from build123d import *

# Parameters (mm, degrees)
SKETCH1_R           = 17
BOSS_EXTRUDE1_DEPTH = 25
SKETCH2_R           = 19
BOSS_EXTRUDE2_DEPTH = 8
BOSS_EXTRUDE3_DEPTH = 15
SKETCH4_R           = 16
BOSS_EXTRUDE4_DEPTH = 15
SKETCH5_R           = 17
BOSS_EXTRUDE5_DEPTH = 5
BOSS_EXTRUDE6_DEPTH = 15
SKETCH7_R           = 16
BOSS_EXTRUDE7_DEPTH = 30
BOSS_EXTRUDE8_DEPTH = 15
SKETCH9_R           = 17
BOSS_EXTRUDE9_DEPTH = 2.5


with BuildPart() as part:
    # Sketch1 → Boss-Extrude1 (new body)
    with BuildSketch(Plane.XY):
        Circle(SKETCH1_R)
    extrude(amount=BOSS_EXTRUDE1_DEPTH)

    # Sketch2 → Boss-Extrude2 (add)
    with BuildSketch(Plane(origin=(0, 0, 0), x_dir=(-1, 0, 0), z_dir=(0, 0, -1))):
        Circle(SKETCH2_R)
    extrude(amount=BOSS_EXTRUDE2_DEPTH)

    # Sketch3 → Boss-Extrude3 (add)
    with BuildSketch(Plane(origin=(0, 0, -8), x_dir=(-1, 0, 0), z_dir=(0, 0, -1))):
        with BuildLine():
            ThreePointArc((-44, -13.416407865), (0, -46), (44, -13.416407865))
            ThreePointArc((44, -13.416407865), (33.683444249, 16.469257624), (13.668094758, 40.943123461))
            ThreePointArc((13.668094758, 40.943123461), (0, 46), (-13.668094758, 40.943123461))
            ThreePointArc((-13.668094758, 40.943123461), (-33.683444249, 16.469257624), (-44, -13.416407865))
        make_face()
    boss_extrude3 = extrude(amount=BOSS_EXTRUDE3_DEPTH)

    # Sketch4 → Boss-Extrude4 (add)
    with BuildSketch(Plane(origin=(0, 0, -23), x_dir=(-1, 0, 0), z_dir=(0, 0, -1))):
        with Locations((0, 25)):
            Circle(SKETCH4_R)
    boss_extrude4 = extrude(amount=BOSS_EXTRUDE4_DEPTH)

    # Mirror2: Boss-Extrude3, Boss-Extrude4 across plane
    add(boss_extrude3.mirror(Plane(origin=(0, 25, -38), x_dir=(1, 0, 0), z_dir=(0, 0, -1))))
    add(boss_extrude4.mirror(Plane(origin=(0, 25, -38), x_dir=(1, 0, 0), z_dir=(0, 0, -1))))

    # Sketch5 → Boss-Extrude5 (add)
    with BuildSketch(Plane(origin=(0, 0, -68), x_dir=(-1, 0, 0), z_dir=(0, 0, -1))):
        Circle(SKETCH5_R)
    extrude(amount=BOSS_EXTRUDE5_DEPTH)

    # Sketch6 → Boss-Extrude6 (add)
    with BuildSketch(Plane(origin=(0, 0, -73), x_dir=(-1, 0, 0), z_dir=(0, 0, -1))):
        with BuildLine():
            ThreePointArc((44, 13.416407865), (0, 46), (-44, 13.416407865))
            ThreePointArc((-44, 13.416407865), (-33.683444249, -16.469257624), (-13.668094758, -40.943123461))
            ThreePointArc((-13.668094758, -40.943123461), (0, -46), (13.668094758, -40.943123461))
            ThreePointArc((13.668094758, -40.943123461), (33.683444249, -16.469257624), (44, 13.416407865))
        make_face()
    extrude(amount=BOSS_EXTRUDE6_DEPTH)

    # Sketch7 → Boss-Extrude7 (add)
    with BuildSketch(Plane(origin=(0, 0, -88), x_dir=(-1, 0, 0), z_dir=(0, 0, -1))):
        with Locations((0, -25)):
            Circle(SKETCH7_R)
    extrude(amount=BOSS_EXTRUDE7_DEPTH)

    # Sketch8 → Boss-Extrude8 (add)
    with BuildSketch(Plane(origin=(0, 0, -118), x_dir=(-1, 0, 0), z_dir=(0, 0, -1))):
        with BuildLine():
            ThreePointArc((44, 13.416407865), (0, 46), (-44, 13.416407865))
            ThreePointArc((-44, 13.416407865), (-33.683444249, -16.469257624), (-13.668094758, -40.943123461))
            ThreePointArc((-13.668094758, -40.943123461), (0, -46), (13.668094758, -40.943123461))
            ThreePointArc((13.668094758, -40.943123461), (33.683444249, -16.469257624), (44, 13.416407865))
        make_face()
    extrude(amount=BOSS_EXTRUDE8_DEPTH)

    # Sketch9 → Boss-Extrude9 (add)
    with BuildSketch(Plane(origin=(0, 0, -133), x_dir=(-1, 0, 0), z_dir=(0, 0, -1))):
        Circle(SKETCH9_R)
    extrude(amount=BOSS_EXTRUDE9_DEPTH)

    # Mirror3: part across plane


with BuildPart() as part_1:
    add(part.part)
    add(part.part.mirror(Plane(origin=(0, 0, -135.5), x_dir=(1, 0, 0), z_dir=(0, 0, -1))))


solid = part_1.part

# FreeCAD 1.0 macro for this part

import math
import FreeCAD as App
import Part
import Sketcher

V = App.Vector
Q = App.Units.Quantity

doc = App.newDocument("Part")
body = doc.addObject("PartDesign::Body", "Body")

# Sketch on XY plane
sketch1 = doc.addObject("Sketcher::SketchObject", "Sketch")
body.addObject(sketch1)
sketch1.AttachmentSupport = (doc.XY_Plane, [""])
sketch1.MapMode = "FlatFace"
sketch1.addGeometry(Part.Circle(V(0, 0, 0), V(0, 0, 1), 17), False)
sketch1.addConstraint([
    Sketcher.Constraint("Coincident", 0, 3, -1, 1),
    Sketcher.Constraint("Diameter", 0, Q("34 mm")),
])
pad1 = doc.addObject("PartDesign::Pad", "Pad")
body.addObject(pad1)
pad1.Profile = sketch1
pad1.Length = 25

# Sketch on XY plane
sketch2 = doc.addObject("Sketcher::SketchObject", "Sketch001")
body.addObject(sketch2)
sketch2.AttachmentSupport = (doc.XY_Plane, [""])
sketch2.MapMode = "FlatFace"
sketch2.addGeometry(Part.Circle(V(0, 0, 0), V(0, 0, 1), 19), False)
sketch2.addConstraint([
    Sketcher.Constraint("Coincident", 0, 3, -1, 1),
    Sketcher.Constraint("Diameter", 0, Q("38 mm")),
])
pad2 = doc.addObject("PartDesign::Pad", "Pad001")
body.addObject(pad2)
pad2.Profile = sketch2
pad2.Length = 8
pad2.Reversed = True

# Sketch on XY plane
sketch3 = doc.addObject("Sketcher::SketchObject", "Sketch002")
body.addObject(sketch3)
sketch3.AttachmentSupport = (doc.XY_Plane, [""])
sketch3.MapMode = "FlatFace"
sketch3.AttachmentOffset = App.Placement(V(0, 0, -8), App.Rotation())
sketch3.addGeometry([
    Part.ArcOfCircle(Part.Circle(V(0, 0, 0), V(0, 0, 1), 46), math.radians(-163.042574), math.radians(-16.957426)),
    Part.ArcOfCircle(Part.Circle(V(44.909454, -27.384549, 0), V(0, 0, 1), 90), math.radians(130.606599), math.radians(171.071514)),
    Part.ArcOfCircle(Part.Circle(V(0, 25, 0), V(0, 0, 1), 21), math.radians(49.393401), math.radians(130.606599)),
    Part.ArcOfCircle(Part.Circle(V(-44.909454, -27.384549, 0), V(0, 0, 1), 90), math.radians(8.928486), math.radians(49.393401)),
], False)
sketch3.addConstraint([
    Sketcher.Constraint("Coincident", 0, 1, 1, 2),
    Sketcher.Constraint("Tangent", 1, 1, 2, 2),
    Sketcher.Constraint("Tangent", 2, 1, 3, 2),
    Sketcher.Constraint("Coincident", 3, 1, 0, 2),
    Sketcher.Constraint("Coincident", 0, 3, -1, 1),
    Sketcher.Constraint("Equal", 1, 3),
    Sketcher.Constraint("Symmetric", 1, 3, 3, 3, -2),
    Sketcher.Constraint("Radius", 0, Q("46 mm")),
    Sketcher.Constraint("Radius", 1, Q("90 mm")),
    Sketcher.Constraint("Radius", 2, Q("21 mm")),
    Sketcher.Constraint("DistanceY", -1, 1, 2, 3, Q("25 mm")),
    Sketcher.Constraint("DistanceX", 0, 1, -1, 1, Q("44 mm")),
])
pad3 = doc.addObject("PartDesign::Pad", "Pad002")
body.addObject(pad3)
pad3.Profile = sketch3
pad3.Length = 15
pad3.Reversed = True

# Sketch on XY plane
sketch4 = doc.addObject("Sketcher::SketchObject", "Sketch003")
body.addObject(sketch4)
sketch4.AttachmentSupport = (doc.XY_Plane, [""])
sketch4.MapMode = "FlatFace"
sketch4.AttachmentOffset = App.Placement(V(0, 0, -23), App.Rotation())
sketch4.addGeometry(Part.Circle(V(0, 25, 0), V(0, 0, 1), 16), False)
sketch4.addConstraint([
    Sketcher.Constraint("PointOnObject", 0, 3, -2),
    Sketcher.Constraint("Diameter", 0, Q("32 mm")),
    Sketcher.Constraint("DistanceY", -1, 1, 0, 3, Q("25 mm")),
])
pad4 = doc.addObject("PartDesign::Pad", "Pad003")
body.addObject(pad4)
pad4.Profile = sketch4
pad4.Length = 15
pad4.Reversed = True
doc.recompute()

datumplane = doc.addObject("PartDesign::Plane", "DatumPlane")
body.addObject(datumplane)
datumplane.AttachmentSupport = (doc.XY_Plane, [""])
datumplane.MapMode = "FlatFace"
datumplane.AttachmentOffset = App.Placement(V(0, 0, -38), App.Rotation())
mirrored = doc.addObject("PartDesign::Mirrored", "Mirrored")
body.addObject(mirrored)
mirrored.Originals = [pad3, pad4]
mirrored.MirrorPlane = (datumplane, [""])
body.Tip = mirrored

# Sketch on XY plane
sketch5 = doc.addObject("Sketcher::SketchObject", "Sketch004")
body.addObject(sketch5)
sketch5.AttachmentSupport = (doc.XY_Plane, [""])
sketch5.MapMode = "FlatFace"
sketch5.AttachmentOffset = App.Placement(V(0, 0, -68), App.Rotation())
sketch5.addGeometry(Part.Circle(V(0, 0, 0), V(0, 0, 1), 17), False)
sketch5.addConstraint([
    Sketcher.Constraint("Coincident", 0, 3, -1, 1),
    Sketcher.Constraint("Diameter", 0, Q("34 mm")),
])
pad5 = doc.addObject("PartDesign::Pad", "Pad004")
body.addObject(pad5)
pad5.Profile = sketch5
pad5.Length = 5
pad5.Reversed = True

# Sketch on XY plane
sketch6 = doc.addObject("Sketcher::SketchObject", "Sketch005")
body.addObject(sketch6)
sketch6.AttachmentSupport = (doc.XY_Plane, [""])
sketch6.MapMode = "FlatFace"
sketch6.AttachmentOffset = App.Placement(V(0, 0, -73), App.Rotation())
sketch6.addGeometry([
    Part.ArcOfCircle(Part.Circle(V(0, 0, 0), V(0, 0, 1), 46), math.radians(16.957426), math.radians(163.042574)),
    Part.ArcOfCircle(Part.Circle(V(-44.909454, 27.384549, 0), V(0, 0, 1), 90), math.radians(-49.393401), math.radians(-8.928486)),
    Part.ArcOfCircle(Part.Circle(V(0, -25, 0), V(0, 0, 1), 21), math.radians(-130.606599), math.radians(-49.393401)),
    Part.ArcOfCircle(Part.Circle(V(44.909454, 27.384549, 0), V(0, 0, 1), 90), math.radians(-171.071514), math.radians(-130.606599)),
], False)
sketch6.addConstraint([
    Sketcher.Constraint("Coincident", 0, 1, 1, 2),
    Sketcher.Constraint("Tangent", 1, 1, 2, 2),
    Sketcher.Constraint("Tangent", 2, 1, 3, 2),
    Sketcher.Constraint("Coincident", 3, 1, 0, 2),
    Sketcher.Constraint("Coincident", 0, 3, -1, 1),
    Sketcher.Constraint("Equal", 1, 3),
    Sketcher.Constraint("Symmetric", 1, 3, 3, 3, -2),
    Sketcher.Constraint("Radius", 0, Q("46 mm")),
    Sketcher.Constraint("Radius", 1, Q("90 mm")),
    Sketcher.Constraint("Radius", 2, Q("21 mm")),
    Sketcher.Constraint("DistanceY", 2, 3, -1, 1, Q("25 mm")),
    Sketcher.Constraint("DistanceX", -1, 1, 0, 1, Q("44 mm")),
])
pad6 = doc.addObject("PartDesign::Pad", "Pad005")
body.addObject(pad6)
pad6.Profile = sketch6
pad6.Length = 15
pad6.Reversed = True

# Sketch on XY plane
sketch7 = doc.addObject("Sketcher::SketchObject", "Sketch006")
body.addObject(sketch7)
sketch7.AttachmentSupport = (doc.XY_Plane, [""])
sketch7.MapMode = "FlatFace"
sketch7.AttachmentOffset = App.Placement(V(0, 0, -88), App.Rotation())
sketch7.addGeometry(Part.Circle(V(0, -25, 0), V(0, 0, 1), 16), False)
sketch7.addConstraint([
    Sketcher.Constraint("PointOnObject", 0, 3, -2),
    Sketcher.Constraint("Diameter", 0, Q("32 mm")),
    Sketcher.Constraint("DistanceY", 0, 3, -1, 1, Q("25 mm")),
])
pad7 = doc.addObject("PartDesign::Pad", "Pad006")
body.addObject(pad7)
pad7.Profile = sketch7
pad7.Length = 30
pad7.Reversed = True

# Sketch on XY plane
sketch8 = doc.addObject("Sketcher::SketchObject", "Sketch007")
body.addObject(sketch8)
sketch8.AttachmentSupport = (doc.XY_Plane, [""])
sketch8.MapMode = "FlatFace"
sketch8.AttachmentOffset = App.Placement(V(0, 0, -118), App.Rotation())
sketch8.addGeometry([
    Part.ArcOfCircle(Part.Circle(V(0, 0, 0), V(0, 0, 1), 46), math.radians(16.957426), math.radians(163.042574)),
    Part.ArcOfCircle(Part.Circle(V(-44.909454, 27.384549, 0), V(0, 0, 1), 90), math.radians(-49.393401), math.radians(-8.928486)),
    Part.ArcOfCircle(Part.Circle(V(0, -25, 0), V(0, 0, 1), 21), math.radians(-130.606599), math.radians(-49.393401)),
    Part.ArcOfCircle(Part.Circle(V(44.909454, 27.384549, 0), V(0, 0, 1), 90), math.radians(-171.071514), math.radians(-130.606599)),
], False)
sketch8.addConstraint([
    Sketcher.Constraint("Coincident", 0, 1, 1, 2),
    Sketcher.Constraint("Tangent", 1, 1, 2, 2),
    Sketcher.Constraint("Tangent", 2, 1, 3, 2),
    Sketcher.Constraint("Coincident", 3, 1, 0, 2),
    Sketcher.Constraint("Coincident", 0, 3, -1, 1),
    Sketcher.Constraint("Equal", 1, 3),
    Sketcher.Constraint("Symmetric", 1, 3, 3, 3, -2),
    Sketcher.Constraint("Radius", 0, Q("46 mm")),
    Sketcher.Constraint("Radius", 1, Q("90 mm")),
    Sketcher.Constraint("Radius", 2, Q("21 mm")),
    Sketcher.Constraint("DistanceY", 2, 3, -1, 1, Q("25 mm")),
    Sketcher.Constraint("DistanceX", -1, 1, 0, 1, Q("44 mm")),
])
pad8 = doc.addObject("PartDesign::Pad", "Pad007")
body.addObject(pad8)
pad8.Profile = sketch8
pad8.Length = 15
pad8.Reversed = True

# Sketch on XY plane
sketch9 = doc.addObject("Sketcher::SketchObject", "Sketch008")
body.addObject(sketch9)
sketch9.AttachmentSupport = (doc.XY_Plane, [""])
sketch9.MapMode = "FlatFace"
sketch9.AttachmentOffset = App.Placement(V(0, 0, -133), App.Rotation())
sketch9.addGeometry(Part.Circle(V(0, 0, 0), V(0, 0, 1), 17), False)
sketch9.addConstraint([
    Sketcher.Constraint("Coincident", 0, 3, -1, 1),
    Sketcher.Constraint("Diameter", 0, Q("34 mm")),
])
pad9 = doc.addObject("PartDesign::Pad", "Pad008")
body.addObject(pad9)
pad9.Profile = sketch9
pad9.Length = 2.5
pad9.Reversed = True
body2 = doc.addObject("PartDesign::Body", "Body001")
doc.recompute()

body2.BaseFeature = body
doc.recompute()

mirroring = doc.addObject("Part::Mirroring", "Mirroring")
mirroring.Source = body
mirroring.Base = V(0, 0, -135.5)
mirroring.Normal = V(0, 0, -1)
body3 = doc.addObject("PartDesign::Body", "Body002")
body3.BaseFeature = mirroring
boolean = doc.addObject("PartDesign::Boolean", "Boolean")
body2.addObject(boolean)
boolean.Type = "Fuse"
boolean.addObjects([body3])
doc.recompute()
mirroring.Visibility = False

doc.recompute()
